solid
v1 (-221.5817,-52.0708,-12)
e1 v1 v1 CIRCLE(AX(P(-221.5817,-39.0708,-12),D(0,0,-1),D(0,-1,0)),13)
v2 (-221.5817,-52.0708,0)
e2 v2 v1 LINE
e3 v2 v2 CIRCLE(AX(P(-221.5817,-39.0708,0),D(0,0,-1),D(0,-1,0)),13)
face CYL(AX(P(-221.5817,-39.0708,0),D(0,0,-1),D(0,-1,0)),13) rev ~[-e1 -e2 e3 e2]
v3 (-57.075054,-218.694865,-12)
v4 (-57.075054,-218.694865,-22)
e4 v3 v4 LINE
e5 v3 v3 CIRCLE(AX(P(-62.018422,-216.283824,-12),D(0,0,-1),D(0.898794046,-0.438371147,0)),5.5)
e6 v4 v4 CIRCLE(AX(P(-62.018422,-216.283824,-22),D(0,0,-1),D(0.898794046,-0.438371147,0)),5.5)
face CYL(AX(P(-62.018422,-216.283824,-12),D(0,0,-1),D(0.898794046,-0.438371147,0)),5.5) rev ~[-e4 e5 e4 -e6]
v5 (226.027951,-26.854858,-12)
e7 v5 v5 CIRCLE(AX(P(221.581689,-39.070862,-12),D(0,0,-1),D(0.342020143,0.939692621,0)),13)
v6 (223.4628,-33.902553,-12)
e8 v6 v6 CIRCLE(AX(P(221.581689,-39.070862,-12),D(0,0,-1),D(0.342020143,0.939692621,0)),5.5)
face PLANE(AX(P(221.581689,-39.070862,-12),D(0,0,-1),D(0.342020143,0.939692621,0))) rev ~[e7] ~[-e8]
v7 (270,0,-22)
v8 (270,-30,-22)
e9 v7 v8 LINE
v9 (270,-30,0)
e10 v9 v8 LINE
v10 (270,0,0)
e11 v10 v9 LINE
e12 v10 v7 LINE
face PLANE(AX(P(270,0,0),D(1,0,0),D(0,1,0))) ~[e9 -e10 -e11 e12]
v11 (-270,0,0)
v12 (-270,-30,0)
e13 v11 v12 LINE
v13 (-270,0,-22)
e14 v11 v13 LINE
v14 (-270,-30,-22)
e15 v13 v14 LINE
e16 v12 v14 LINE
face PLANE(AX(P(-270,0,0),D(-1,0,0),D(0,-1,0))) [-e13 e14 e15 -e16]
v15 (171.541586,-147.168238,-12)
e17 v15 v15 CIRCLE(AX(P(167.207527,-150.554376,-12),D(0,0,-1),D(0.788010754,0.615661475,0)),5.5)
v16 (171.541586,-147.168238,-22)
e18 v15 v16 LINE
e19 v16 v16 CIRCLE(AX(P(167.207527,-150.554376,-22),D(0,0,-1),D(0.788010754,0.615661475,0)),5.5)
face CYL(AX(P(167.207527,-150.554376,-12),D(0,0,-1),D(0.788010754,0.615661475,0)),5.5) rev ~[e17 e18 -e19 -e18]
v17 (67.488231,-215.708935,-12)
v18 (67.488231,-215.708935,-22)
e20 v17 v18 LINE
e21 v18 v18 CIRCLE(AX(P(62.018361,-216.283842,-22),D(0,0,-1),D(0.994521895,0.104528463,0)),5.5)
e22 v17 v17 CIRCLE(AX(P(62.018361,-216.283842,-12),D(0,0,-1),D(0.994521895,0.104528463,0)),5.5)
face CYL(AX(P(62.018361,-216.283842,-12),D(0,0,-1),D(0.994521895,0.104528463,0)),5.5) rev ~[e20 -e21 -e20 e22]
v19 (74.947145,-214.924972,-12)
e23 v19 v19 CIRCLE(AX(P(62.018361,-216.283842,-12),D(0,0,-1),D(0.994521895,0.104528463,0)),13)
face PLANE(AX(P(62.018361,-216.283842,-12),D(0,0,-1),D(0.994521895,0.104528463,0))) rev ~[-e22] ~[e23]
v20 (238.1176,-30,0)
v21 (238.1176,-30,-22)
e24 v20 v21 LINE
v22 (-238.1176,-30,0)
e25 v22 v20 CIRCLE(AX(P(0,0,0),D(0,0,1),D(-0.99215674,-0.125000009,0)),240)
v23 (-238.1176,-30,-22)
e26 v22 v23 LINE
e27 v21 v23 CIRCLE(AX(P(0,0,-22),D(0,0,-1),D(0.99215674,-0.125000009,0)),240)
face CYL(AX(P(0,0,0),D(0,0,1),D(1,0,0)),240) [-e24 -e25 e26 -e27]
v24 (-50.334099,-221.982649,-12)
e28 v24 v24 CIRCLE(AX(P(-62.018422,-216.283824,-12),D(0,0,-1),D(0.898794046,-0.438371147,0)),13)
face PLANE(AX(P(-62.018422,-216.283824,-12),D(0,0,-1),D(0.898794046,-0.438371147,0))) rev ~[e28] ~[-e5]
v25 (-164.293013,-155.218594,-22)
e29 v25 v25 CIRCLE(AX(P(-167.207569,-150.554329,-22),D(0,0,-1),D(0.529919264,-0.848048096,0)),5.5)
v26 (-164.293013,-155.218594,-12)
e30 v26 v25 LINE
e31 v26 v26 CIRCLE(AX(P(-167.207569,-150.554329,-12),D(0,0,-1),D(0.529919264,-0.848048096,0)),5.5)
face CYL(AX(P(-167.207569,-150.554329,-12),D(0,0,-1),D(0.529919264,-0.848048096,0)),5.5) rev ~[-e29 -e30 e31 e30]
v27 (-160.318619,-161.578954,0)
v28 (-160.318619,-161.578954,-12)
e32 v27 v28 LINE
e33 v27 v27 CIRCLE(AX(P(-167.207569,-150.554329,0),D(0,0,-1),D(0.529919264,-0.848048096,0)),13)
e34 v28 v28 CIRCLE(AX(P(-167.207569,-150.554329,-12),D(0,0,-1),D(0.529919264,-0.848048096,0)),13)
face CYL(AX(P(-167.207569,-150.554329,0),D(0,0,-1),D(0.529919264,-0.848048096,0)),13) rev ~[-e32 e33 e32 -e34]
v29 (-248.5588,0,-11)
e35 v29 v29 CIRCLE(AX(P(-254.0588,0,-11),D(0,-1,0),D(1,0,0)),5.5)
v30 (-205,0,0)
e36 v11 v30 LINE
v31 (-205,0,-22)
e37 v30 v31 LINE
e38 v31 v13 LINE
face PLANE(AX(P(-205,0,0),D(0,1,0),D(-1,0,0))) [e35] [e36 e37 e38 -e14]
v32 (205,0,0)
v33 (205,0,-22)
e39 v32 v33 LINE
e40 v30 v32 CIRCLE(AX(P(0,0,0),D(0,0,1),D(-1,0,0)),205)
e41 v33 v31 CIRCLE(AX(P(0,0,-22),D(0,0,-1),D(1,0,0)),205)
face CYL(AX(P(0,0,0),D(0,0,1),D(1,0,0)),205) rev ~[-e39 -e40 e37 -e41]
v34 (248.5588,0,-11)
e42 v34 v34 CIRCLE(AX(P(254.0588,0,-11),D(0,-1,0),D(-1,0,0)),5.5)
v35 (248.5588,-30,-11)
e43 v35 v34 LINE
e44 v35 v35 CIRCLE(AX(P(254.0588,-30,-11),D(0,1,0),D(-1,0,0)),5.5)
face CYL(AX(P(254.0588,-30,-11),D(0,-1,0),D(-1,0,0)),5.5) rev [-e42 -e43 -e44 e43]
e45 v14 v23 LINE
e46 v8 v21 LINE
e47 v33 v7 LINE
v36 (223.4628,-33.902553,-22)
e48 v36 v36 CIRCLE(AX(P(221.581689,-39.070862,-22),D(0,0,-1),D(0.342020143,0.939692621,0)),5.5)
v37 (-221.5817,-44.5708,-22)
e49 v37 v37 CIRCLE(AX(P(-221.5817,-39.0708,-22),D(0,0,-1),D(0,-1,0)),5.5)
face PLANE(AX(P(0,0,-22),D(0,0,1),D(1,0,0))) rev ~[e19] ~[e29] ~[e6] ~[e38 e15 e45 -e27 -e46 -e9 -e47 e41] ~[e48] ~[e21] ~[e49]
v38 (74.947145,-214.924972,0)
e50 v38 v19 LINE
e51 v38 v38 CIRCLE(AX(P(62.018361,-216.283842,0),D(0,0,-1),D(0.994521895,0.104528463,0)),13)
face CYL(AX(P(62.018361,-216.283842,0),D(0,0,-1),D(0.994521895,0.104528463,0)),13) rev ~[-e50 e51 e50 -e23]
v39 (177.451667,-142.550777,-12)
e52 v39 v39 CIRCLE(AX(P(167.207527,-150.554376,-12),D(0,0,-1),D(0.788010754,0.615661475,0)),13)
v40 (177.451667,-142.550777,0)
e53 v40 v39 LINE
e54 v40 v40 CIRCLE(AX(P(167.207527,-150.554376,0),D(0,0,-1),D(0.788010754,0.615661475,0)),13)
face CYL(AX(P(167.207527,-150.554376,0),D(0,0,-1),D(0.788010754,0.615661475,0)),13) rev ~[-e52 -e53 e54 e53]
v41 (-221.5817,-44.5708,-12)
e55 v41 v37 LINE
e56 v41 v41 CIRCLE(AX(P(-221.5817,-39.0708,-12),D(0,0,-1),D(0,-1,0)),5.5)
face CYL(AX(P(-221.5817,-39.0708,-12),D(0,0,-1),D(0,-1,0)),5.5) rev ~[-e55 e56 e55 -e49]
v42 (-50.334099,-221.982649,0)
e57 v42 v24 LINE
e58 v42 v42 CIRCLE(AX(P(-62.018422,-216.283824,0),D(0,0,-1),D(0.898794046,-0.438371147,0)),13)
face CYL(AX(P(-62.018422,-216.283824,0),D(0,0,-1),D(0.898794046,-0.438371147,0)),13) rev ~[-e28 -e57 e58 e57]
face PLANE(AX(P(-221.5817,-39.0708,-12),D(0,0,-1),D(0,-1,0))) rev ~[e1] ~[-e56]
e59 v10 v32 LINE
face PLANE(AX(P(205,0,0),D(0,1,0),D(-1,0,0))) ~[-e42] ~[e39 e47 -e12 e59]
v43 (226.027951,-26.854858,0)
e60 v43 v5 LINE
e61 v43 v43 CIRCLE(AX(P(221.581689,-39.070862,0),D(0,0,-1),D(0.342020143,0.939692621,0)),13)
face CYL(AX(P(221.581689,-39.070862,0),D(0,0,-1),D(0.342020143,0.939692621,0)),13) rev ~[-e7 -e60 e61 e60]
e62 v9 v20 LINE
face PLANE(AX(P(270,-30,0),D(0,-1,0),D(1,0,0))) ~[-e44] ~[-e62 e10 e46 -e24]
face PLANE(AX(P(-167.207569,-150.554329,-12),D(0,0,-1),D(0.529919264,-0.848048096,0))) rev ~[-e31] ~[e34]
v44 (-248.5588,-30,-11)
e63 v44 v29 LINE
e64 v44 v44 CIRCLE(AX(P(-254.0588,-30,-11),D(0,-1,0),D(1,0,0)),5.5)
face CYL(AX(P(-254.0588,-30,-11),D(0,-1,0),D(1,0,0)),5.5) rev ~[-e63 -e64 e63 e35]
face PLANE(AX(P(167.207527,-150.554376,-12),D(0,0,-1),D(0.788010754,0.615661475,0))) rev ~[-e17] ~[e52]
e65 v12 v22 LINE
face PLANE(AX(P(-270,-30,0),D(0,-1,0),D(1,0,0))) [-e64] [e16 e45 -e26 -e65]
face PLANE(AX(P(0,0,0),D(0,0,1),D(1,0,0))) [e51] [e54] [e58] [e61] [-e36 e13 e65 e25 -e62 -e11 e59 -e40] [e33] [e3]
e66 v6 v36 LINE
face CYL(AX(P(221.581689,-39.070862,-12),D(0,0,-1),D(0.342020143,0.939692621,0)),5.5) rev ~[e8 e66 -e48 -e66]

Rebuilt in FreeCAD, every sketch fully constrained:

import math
import FreeCAD as App
import Part
import Sketcher

V = App.Vector
Q = App.Units.Quantity

doc = App.newDocument("Part")
params = doc.addObject("Spreadsheet::Sheet", "Params")
for row, (alias, value) in enumerate([
    ("sketch1_radius", "205 mm"),
    ("sketch1_radius2", "240 mm"),
    ("sketch1_height", "30 mm"),
    ("sketch1_width", "65 mm"),
    ("pad1_length", "22 mm"),
    ("sketch2_diameter", "11 mm"),
    ("sketch3_diameter", "11 mm"),
    ("hole_diameter", "11 mm"),
    ("hole_cbore_diameter", "26 mm"),
    ("hole_cbore_depth", "12 mm"),
], start=1):
    params.set(f"A{row}", alias)
    params.set(f"B{row}", "=" + value)
    params.setAlias(f"B{row}", alias)

body = doc.addObject("PartDesign::Body", "Body")

sketch1 = body.newObject("Sketcher::SketchObject", "Sketch")
sketch1.AttachmentSupport = (doc.getObject("XY_Plane"), [""])
sketch1.MapMode = "FlatFace"
sketch1.addGeometry([
    Part.ArcOfCircle(Part.Circle(V(0, 0, 0), V(0, 0, 1), 205), math.radians(180), math.radians(270)),
    Part.LineSegment(V(-205, 0, 0), V(-270, 0, 0)),
    Part.LineSegment(V(-270, 0, 0), V(-270, -30, 0)),
    Part.LineSegment(V(-270, -30, 0), V(-238, -30, 0)),
    Part.ArcOfCircle(Part.Circle(V(0, 0, 0), V(0, 0, 1), 240), math.radians(-173), math.radians(-90)),
    Part.LineSegment(V(0, -240, 0), V(0, -205, 0)),
], False)
sketch1.addConstraint([
    Sketcher.Constraint("Coincident", 0, 1, 1, 1),
    Sketcher.Constraint("Coincident", 1, 2, 2, 1),
    Sketcher.Constraint("Coincident", 2, 2, 3, 1),
    Sketcher.Constraint("Coincident", 3, 2, 4, 1),
    Sketcher.Constraint("Coincident", 4, 2, 5, 1),
    Sketcher.Constraint("Coincident", 5, 2, 0, 2),
    Sketcher.Constraint("Horizontal", 1),
    Sketcher.Constraint("Vertical", 2),
    Sketcher.Constraint("Horizontal", 3),
    Sketcher.Constraint("Vertical", 5),
    Sketcher.Constraint("Coincident", 0, 3, -1, 1),
    Sketcher.Constraint("Coincident", 4, 3, -1, 1),
    Sketcher.Constraint("PointOnObject", 0, 1, -1),
    Sketcher.Constraint("PointOnObject", 4, 2, -2),
    Sketcher.Constraint("Radius", 0, Q("205 mm")),
    Sketcher.Constraint("Radius", 4, Q("240 mm")),
    Sketcher.Constraint("DistanceY", 2, 2, 2, 1, Q("30 mm")),
    Sketcher.Constraint("DistanceX", 1, 2, 1, 1, Q("65 mm")),
])
sketch1.setExpression("Constraints[14]", "Params.sketch1_radius")
sketch1.setExpression("Constraints[15]", "Params.sketch1_radius2")
sketch1.setExpression("Constraints[16]", "Params.sketch1_height")
sketch1.setExpression("Constraints[17]", "Params.sketch1_width")
pad1 = body.newObject("PartDesign::Pad", "Pad")
pad1.Profile = sketch1
pad1.setExpression("Length", "Params.pad1_length")
pad1.Reversed = True

sketch2 = body.newObject("Sketcher::SketchObject", "Sketch001")
sketch2.AttachmentSupport = (doc.getObject("XZ_Plane"), [""])
sketch2.MapMode = "FlatFace"
sketch2.AttachmentOffset = App.Placement(V(0, 0, 30), App.Rotation())
sketch2.addGeometry(Part.Circle(V(-254, -11, 0), V(0, 0, 1), 6), False)
sketch2.addConstraint([
    Sketcher.Constraint("Diameter", 0, Q("11 mm")),
    Sketcher.Constraint("DistanceY", 0, 3, -1, 1, Q("11 mm")),
    Sketcher.Constraint("DistanceX", 0, 3, -1, 1, Q("254.0588 mm")),
])
sketch2.setExpression("Constraints[0]", "Params.sketch2_diameter")
pocket1 = body.newObject("PartDesign::Pocket", "Pocket")
pocket1.Profile = sketch2
pocket1.Type = "ThroughAll"
doc.recompute()

mirrored = body.newObject("PartDesign::Mirrored", "Mirrored")
mirrored.Originals = [pad1, pocket1]
mirrored.MirrorPlane = (doc.getObject("YZ_Plane"), [""])
body.Tip = mirrored

sketch3 = body.newObject("Sketcher::SketchObject", "Sketch002")
sketch3.AttachmentSupport = (doc.getObject("XY_Plane"), [""])
sketch3.MapMode = "FlatFace"
sketch3.addGeometry(Part.Circle(V(-222, -39, 0), V(0, 0, 1), 6), False)
sketch3.addConstraint([
    Sketcher.Constraint("Diameter", 0, Q("11 mm")),
    Sketcher.Constraint("DistanceX", 0, 3, -1, 1, Q("221.5817 mm")),
    Sketcher.Constraint("DistanceY", 0, 3, -1, 1, Q("39.0708 mm")),
])
sketch3.setExpression("Constraints[0]", "Params.sketch3_diameter")
doc.recompute()
hole = body.newObject("PartDesign::Hole", "Hole")
hole.Profile = sketch3
hole.ThreadType = "None"
hole.setExpression("Diameter", "Params.hole_diameter")
hole.DepthType = "ThroughAll"
hole.HoleCutType = "Counterbore"
hole.setExpression("HoleCutDiameter", "Params.hole_cbore_diameter")
hole.setExpression("HoleCutDepth", "Params.hole_cbore_depth")
doc.recompute()

polarpattern = body.newObject("PartDesign::PolarPattern", "PolarPattern")
polarpattern.Originals = [hole]
polarpattern.Axis = (doc.getObject("Z_Axis"), [""])
polarpattern.Angle = 160
polarpattern.Occurrences = 6
body.Tip = polarpattern

doc.recompute()
